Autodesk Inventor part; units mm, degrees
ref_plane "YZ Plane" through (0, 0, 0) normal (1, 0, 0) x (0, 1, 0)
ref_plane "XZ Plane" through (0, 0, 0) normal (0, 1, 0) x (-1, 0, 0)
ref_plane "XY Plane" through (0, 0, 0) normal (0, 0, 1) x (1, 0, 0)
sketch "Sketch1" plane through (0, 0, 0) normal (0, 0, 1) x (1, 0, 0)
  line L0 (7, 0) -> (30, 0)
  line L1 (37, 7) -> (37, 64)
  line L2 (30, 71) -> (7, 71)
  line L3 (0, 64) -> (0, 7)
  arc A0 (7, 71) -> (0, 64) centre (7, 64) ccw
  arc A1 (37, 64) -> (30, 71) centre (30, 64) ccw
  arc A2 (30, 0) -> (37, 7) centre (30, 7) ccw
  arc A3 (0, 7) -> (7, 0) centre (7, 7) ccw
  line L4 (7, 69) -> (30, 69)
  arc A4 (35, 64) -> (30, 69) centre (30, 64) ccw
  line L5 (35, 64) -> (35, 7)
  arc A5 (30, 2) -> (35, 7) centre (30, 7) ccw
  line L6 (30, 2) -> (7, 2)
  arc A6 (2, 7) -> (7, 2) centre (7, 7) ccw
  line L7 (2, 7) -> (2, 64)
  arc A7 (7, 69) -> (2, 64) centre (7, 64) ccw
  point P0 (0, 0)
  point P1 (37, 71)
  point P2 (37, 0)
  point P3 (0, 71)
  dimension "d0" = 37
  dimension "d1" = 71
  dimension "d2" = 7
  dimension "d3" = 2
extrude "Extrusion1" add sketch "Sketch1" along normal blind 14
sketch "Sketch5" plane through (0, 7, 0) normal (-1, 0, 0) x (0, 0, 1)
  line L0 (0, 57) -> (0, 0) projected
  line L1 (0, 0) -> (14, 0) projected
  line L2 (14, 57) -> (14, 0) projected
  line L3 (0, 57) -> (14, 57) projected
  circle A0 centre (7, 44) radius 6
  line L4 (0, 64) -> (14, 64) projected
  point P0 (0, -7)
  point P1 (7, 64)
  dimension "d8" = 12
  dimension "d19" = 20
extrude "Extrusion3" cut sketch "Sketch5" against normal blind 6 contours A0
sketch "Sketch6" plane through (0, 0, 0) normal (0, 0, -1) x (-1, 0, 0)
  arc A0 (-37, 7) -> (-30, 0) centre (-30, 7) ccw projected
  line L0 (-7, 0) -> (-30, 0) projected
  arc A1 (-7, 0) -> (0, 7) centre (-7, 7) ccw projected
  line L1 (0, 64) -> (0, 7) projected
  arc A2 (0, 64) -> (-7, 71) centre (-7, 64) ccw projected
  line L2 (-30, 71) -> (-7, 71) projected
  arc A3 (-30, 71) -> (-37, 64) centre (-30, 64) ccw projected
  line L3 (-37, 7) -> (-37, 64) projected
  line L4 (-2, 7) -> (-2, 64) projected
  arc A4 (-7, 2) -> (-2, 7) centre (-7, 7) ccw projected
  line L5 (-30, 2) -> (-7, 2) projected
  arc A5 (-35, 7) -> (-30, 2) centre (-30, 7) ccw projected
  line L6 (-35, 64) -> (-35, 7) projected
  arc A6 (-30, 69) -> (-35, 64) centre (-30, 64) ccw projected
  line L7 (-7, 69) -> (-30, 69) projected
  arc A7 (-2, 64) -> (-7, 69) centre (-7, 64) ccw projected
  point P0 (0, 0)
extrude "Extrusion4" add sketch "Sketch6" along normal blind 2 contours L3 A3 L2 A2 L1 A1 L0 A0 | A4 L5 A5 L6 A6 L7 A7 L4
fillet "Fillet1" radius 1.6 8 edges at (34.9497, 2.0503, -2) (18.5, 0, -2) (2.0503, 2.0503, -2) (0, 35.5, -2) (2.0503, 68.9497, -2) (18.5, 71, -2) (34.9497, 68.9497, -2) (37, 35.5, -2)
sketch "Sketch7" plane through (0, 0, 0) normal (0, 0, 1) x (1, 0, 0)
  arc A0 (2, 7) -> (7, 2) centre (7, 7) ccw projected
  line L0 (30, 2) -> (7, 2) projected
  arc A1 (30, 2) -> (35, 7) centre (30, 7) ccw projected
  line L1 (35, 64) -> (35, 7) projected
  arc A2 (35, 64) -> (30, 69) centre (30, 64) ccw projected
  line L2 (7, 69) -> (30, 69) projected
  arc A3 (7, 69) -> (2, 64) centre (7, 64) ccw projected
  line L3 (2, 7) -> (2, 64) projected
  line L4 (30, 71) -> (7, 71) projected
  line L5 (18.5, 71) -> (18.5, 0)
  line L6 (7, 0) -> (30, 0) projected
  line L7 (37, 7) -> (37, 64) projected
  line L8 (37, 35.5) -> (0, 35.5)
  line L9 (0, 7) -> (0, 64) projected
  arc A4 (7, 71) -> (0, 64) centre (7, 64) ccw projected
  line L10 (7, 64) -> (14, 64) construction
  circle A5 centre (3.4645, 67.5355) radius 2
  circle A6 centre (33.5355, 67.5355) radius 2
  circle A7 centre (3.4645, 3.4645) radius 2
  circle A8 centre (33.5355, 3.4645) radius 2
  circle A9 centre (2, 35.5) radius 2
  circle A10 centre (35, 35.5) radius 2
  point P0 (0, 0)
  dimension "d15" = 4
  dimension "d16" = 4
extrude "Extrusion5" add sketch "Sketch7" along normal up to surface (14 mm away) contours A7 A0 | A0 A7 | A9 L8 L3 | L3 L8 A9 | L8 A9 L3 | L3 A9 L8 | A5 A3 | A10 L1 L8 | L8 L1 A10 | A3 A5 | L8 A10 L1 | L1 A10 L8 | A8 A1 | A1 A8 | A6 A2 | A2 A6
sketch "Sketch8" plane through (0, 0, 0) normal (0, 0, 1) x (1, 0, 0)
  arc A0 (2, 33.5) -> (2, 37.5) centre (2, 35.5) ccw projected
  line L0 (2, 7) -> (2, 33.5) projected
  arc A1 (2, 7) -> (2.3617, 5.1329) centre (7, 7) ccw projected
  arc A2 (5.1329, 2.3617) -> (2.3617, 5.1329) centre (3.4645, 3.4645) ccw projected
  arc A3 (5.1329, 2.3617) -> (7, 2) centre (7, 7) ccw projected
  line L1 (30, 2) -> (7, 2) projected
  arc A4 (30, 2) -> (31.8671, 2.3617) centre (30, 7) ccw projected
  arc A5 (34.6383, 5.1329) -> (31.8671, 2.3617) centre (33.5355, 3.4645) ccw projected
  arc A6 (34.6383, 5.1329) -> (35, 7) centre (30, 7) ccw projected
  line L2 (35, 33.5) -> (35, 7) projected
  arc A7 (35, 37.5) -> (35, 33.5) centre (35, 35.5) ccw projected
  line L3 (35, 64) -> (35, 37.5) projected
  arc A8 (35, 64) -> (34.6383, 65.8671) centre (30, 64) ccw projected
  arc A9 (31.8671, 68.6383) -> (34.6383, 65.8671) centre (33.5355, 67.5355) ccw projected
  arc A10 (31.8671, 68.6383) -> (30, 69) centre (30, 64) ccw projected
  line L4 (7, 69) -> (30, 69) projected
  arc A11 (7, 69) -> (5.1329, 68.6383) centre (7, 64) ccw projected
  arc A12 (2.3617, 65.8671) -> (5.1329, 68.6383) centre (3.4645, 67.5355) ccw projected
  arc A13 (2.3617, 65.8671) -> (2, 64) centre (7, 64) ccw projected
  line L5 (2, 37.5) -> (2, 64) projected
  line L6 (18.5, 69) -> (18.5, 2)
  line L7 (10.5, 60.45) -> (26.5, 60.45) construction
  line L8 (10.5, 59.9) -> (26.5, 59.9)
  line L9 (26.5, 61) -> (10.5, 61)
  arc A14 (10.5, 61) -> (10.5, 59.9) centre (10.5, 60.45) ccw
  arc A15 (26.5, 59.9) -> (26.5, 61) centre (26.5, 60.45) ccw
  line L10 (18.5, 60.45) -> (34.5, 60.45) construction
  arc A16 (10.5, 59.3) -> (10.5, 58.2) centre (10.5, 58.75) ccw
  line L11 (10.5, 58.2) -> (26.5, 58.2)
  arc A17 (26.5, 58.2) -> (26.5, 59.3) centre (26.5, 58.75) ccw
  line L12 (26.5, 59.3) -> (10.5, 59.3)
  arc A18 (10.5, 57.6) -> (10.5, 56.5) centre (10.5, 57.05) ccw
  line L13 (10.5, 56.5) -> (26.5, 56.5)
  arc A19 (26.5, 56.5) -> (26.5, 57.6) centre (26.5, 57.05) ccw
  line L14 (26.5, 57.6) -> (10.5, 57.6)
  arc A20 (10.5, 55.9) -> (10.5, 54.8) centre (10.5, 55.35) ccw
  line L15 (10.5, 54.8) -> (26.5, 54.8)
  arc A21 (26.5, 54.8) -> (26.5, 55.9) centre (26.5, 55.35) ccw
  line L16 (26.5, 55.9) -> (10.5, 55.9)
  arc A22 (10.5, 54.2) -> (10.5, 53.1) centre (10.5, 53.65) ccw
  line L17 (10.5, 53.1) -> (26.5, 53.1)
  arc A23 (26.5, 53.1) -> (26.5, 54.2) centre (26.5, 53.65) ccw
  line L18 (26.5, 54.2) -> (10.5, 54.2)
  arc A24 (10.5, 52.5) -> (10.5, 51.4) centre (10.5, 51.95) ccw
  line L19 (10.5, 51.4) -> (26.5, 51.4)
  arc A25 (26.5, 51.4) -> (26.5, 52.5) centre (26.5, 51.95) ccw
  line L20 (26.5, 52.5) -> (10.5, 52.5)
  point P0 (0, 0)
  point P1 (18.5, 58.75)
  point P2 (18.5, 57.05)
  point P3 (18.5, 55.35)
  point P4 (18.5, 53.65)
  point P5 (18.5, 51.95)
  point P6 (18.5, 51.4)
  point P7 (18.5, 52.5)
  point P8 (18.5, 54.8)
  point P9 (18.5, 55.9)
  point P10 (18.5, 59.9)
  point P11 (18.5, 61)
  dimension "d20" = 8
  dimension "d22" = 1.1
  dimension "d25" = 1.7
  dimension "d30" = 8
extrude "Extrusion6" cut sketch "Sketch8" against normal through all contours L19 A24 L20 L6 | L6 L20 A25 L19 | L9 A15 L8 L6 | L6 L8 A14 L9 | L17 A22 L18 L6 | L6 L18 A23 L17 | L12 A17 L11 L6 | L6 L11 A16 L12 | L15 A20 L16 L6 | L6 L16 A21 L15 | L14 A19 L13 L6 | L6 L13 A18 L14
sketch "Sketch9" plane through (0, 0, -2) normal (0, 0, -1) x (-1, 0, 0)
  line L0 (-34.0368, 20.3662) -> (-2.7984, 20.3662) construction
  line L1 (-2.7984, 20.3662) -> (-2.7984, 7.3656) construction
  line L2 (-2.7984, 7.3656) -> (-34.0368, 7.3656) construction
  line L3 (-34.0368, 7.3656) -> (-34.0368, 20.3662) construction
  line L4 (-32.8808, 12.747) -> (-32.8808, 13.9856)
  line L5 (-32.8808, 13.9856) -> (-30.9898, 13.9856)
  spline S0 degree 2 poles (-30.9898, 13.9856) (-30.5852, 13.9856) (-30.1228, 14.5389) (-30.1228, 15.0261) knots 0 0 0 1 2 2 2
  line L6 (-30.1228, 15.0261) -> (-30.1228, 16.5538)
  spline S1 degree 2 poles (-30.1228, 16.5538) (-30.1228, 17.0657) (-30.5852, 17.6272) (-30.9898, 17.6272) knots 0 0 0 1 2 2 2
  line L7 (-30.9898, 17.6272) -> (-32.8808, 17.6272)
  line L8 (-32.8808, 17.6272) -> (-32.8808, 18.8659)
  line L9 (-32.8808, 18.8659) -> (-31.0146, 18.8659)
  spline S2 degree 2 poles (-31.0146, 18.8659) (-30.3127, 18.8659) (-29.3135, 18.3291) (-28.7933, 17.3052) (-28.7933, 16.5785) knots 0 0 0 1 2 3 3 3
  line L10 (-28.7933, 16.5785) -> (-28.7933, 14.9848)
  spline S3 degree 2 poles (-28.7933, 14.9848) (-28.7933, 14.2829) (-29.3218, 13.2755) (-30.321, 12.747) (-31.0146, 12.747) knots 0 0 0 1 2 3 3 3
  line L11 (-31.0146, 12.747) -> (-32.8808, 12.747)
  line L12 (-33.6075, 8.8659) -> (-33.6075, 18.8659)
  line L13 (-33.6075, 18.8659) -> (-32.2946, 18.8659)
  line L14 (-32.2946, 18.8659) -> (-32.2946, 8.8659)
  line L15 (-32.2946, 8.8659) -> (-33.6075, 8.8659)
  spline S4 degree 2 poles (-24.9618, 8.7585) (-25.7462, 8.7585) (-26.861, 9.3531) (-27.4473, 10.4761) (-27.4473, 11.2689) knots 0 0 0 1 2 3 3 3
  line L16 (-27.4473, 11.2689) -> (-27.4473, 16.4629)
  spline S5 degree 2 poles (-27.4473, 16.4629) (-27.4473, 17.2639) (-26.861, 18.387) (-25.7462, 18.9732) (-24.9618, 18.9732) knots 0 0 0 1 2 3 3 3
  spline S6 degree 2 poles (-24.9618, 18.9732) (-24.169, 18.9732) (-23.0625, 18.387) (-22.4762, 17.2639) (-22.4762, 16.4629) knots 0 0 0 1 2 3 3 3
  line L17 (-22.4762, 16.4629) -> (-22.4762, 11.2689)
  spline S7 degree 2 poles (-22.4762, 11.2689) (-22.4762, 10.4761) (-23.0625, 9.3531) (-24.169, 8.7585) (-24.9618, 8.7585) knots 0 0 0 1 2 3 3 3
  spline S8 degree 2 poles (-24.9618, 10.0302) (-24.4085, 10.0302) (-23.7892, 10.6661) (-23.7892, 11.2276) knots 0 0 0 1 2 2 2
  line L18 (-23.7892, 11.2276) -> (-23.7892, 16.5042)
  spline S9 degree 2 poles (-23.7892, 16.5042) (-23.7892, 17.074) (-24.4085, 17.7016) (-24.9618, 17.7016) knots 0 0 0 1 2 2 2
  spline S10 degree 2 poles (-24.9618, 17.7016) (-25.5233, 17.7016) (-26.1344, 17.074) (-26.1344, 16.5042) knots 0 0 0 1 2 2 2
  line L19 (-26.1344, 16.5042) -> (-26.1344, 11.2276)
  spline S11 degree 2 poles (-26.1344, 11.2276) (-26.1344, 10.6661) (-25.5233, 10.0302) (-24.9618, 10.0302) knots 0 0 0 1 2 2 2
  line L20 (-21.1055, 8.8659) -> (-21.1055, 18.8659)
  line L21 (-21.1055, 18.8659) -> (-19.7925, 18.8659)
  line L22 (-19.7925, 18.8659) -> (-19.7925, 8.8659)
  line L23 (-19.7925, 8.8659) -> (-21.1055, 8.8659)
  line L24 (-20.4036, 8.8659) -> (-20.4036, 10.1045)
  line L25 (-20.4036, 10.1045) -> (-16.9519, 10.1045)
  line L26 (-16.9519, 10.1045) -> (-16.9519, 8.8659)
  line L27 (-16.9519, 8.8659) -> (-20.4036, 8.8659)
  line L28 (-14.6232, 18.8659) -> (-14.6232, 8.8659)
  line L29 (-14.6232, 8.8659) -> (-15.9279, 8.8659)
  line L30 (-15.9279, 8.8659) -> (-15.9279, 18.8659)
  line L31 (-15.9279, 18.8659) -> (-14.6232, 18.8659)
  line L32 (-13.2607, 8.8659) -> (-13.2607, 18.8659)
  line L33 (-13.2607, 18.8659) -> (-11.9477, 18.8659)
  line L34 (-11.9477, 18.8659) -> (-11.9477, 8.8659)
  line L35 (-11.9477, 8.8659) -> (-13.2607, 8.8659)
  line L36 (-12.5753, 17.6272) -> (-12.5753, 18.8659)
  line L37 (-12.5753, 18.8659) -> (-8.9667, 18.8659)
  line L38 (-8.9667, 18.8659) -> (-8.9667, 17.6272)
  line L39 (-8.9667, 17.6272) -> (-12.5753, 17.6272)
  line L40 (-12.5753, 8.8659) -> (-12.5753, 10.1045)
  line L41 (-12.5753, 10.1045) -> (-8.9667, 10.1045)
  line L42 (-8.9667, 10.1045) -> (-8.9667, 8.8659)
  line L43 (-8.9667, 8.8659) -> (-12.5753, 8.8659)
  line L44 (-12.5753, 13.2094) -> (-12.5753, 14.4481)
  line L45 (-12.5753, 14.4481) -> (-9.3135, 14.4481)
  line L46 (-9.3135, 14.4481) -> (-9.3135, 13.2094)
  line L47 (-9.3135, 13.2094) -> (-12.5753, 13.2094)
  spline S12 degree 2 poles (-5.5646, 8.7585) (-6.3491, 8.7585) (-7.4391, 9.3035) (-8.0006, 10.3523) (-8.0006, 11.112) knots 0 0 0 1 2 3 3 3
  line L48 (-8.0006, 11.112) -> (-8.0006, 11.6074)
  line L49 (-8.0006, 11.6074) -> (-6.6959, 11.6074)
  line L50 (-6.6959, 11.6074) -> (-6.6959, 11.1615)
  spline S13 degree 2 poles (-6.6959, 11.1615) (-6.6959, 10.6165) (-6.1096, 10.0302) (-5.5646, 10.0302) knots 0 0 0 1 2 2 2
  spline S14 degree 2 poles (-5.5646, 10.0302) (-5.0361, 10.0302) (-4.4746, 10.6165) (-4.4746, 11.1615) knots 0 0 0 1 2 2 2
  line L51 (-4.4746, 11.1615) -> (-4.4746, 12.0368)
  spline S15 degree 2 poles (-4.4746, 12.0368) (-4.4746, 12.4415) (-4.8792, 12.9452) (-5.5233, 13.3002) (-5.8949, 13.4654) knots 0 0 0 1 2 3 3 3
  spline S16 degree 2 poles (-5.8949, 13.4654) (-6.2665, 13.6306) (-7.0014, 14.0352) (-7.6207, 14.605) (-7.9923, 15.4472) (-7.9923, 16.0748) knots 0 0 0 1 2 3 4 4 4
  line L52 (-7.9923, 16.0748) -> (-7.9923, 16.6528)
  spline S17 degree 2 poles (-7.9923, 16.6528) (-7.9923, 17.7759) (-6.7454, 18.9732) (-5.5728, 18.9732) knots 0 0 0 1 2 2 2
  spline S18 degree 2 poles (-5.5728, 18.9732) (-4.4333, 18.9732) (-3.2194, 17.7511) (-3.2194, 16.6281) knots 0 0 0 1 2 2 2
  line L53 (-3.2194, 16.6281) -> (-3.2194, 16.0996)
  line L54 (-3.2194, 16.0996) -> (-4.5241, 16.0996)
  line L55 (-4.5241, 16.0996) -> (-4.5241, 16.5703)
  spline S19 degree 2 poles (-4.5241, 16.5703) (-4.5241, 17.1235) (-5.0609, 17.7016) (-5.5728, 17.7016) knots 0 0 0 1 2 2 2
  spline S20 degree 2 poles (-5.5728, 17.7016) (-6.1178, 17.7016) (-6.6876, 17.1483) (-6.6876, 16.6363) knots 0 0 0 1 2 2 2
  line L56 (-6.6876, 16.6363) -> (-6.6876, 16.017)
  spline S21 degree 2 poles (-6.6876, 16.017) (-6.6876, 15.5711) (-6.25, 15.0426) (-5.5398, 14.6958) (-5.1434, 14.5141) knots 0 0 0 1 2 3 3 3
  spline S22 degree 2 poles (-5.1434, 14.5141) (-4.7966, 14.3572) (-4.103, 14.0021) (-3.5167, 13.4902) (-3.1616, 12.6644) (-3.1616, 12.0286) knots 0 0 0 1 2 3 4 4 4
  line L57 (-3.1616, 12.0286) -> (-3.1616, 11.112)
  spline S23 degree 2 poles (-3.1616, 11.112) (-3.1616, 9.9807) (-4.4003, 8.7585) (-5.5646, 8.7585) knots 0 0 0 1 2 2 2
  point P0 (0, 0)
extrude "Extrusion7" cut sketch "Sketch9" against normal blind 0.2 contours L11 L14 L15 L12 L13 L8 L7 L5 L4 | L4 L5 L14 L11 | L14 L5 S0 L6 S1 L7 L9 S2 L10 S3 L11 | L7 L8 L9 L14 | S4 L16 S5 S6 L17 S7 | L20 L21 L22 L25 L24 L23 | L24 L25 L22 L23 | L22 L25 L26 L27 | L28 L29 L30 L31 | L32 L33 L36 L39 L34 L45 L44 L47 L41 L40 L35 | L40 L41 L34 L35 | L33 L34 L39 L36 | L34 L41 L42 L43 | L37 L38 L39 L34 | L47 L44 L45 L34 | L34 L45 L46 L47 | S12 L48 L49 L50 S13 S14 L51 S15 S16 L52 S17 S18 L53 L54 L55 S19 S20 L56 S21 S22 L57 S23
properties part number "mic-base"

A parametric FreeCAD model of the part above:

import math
import FreeCAD as App
import Part
import Sketcher
Q = App.Units.Quantity


def edges_at(feature, points):
    """Names of the edges that pass closest to the given points."""
    edges = feature.Shape.Edges
    near = lambda p: min(range(len(edges)), key=lambda i: edges[i].distToShape(Part.Vertex(*p))[0])
    return sorted({f"Edge{near(p) + 1}" for p in points})


def add_polygon(sketch, points):
    """Adds a closed chain of lines whose ends are joined by coincident constraints."""
    first, n = sketch.GeometryCount, len(points)
    for a, b in zip(points, points[1:] + points[:1]):
        sketch.addGeometry(Part.LineSegment(App.Vector(*a, 0), App.Vector(*b, 0)), False)
    for i in range(n):
        sketch.addConstraint(Sketcher.Constraint("Coincident", first + i, 2, first + (i + 1) % n, 1))

doc = App.newDocument("Part")
body = doc.addObject("PartDesign::Body", "Body")

sketch1 = body.newObject("Sketcher::SketchObject", "Sketch")
sketch1.AttachmentSupport = (doc.getObject("XY_Plane"), [""])
sketch1.MapMode = "FlatFace"
sketch1.addGeometry([
    Part.ArcOfCircle(Part.Circle(App.Vector(7, 7, 0), App.Vector(0, 0, 1), 7), math.radians(180), math.radians(270)),
    Part.LineSegment(App.Vector(7, 0, 0), App.Vector(30, 0, 0)),
    Part.ArcOfCircle(Part.Circle(App.Vector(30, 7, 0), App.Vector(0, 0, 1), 7), math.radians(-90), math.radians(0)),
    Part.LineSegment(App.Vector(37, 7, 0), App.Vector(37, 64, 0)),
    Part.ArcOfCircle(Part.Circle(App.Vector(30, 64, 0), App.Vector(0, 0, 1), 7), math.radians(0), math.radians(90)),
    Part.LineSegment(App.Vector(30, 71, 0), App.Vector(7, 71, 0)),
    Part.ArcOfCircle(Part.Circle(App.Vector(7, 64, 0), App.Vector(0, 0, 1), 7), math.radians(90), math.radians(180)),
    Part.LineSegment(App.Vector(0, 64, 0), App.Vector(0, 7, 0)),
    Part.ArcOfCircle(Part.Circle(App.Vector(7, 64, 0), App.Vector(0, 0, 1), 5), math.radians(90), math.radians(180)),
    Part.LineSegment(App.Vector(7, 69, 0), App.Vector(30, 69, 0)),
    Part.ArcOfCircle(Part.Circle(App.Vector(30, 64, 0), App.Vector(0, 0, 1), 5), math.radians(0), math.radians(90)),
    Part.LineSegment(App.Vector(35, 64, 0), App.Vector(35, 7, 0)),
    Part.ArcOfCircle(Part.Circle(App.Vector(30, 7, 0), App.Vector(0, 0, 1), 5), math.radians(-90), math.radians(0)),
    Part.LineSegment(App.Vector(30, 2, 0), App.Vector(7, 2, 0)),
    Part.ArcOfCircle(Part.Circle(App.Vector(7, 7, 0), App.Vector(0, 0, 1), 5), math.radians(180), math.radians(270)),
    Part.LineSegment(App.Vector(2, 7, 0), App.Vector(2, 64, 0)),
], False)
sketch1.addConstraint([
    Sketcher.Constraint("Tangent", 0, 2, 1, 1),
    Sketcher.Constraint("Tangent", 1, 2, 2, 1),
    Sketcher.Constraint("Tangent", 2, 2, 3, 1),
    Sketcher.Constraint("Tangent", 3, 2, 4, 1),
    Sketcher.Constraint("Tangent", 4, 2, 5, 1),
    Sketcher.Constraint("Tangent", 5, 2, 6, 1),
    Sketcher.Constraint("Tangent", 6, 2, 7, 1),
    Sketcher.Constraint("Tangent", 7, 2, 0, 1),
    Sketcher.Constraint("Tangent", 8, 1, 9, 1),
    Sketcher.Constraint("Tangent", 9, 2, 10, 2),
    Sketcher.Constraint("Tangent", 10, 1, 11, 1),
    Sketcher.Constraint("Tangent", 11, 2, 12, 2),
    Sketcher.Constraint("Tangent", 12, 1, 13, 1),
    Sketcher.Constraint("Tangent", 13, 2, 14, 2),
    Sketcher.Constraint("Tangent", 14, 1, 15, 1),
    Sketcher.Constraint("Tangent", 15, 2, 8, 2),
    Sketcher.Constraint("Horizontal", 1),
    Sketcher.Constraint("Vertical", 3),
    Sketcher.Constraint("Horizontal", 5),
    Sketcher.Constraint("Vertical", 7),
    Sketcher.Constraint("Horizontal", 9),
    Sketcher.Constraint("Vertical", 11),
    Sketcher.Constraint("Horizontal", 13),
    Sketcher.Constraint("Vertical", 15),
    Sketcher.Constraint("Coincident", 8, 3, 6, 3),
    Sketcher.Constraint("Coincident", 10, 3, 4, 3),
    Sketcher.Constraint("Coincident", 12, 3, 2, 3),
    Sketcher.Constraint("Equal", 0, 2),
    Sketcher.Constraint("Equal", 2, 4),
    Sketcher.Constraint("Equal", 4, 6),
    Sketcher.Constraint("Equal", 12, 14),
    Sketcher.Constraint("PointOnObject", 0, 2, -1),
    Sketcher.Constraint("PointOnObject", 6, 2, -2),
    Sketcher.Constraint("Radius", 0, Q("7 mm")),
    Sketcher.Constraint("DistanceX", -1, 1, 2, 2, Q("37 mm")),
    Sketcher.Constraint("DistanceY", -1, 1, 4, 2, Q("71 mm")),
    Sketcher.Constraint("DistanceY", -1, 1, 12, 1, Q("2 mm")),
])
pad1 = body.newObject("PartDesign::Pad", "Pad")
pad1.Profile = sketch1
pad1.Length = 14

sketch2 = body.newObject("Sketcher::SketchObject", "Sketch001")
sketch2.AttachmentSupport = (doc.getObject("YZ_Plane"), [""])
sketch2.MapMode = "FlatFace"
sketch2.addGeometry(Part.Circle(App.Vector(51, 7, 0), App.Vector(0, 0, 1), 6), False)
sketch2.addConstraint([
    Sketcher.Constraint("Diameter", 0, Q("12 mm")),
    Sketcher.Constraint("DistanceX", -1, 1, 0, 3, Q("51 mm")),
    Sketcher.Constraint("DistanceY", -1, 1, 0, 3, Q("7 mm")),
])
pocket1 = body.newObject("PartDesign::Pocket", "Pocket")
pocket1.Profile = sketch2
pocket1.Length = 6
pocket1.Reversed = True

sketch3 = body.newObject("Sketcher::SketchObject", "Sketch002")
sketch3.AttachmentSupport = (doc.getObject("XY_Plane"), [""])
sketch3.MapMode = "FlatFace"
sketch3.addGeometry([
    Part.LineSegment(App.Vector(37, 64, 0), App.Vector(37, 7, 0)),
    Part.ArcOfCircle(Part.Circle(App.Vector(30, 7, 0), App.Vector(0, 0, 1), 7), math.radians(-90), math.radians(0)),
    Part.LineSegment(App.Vector(30, 0, 0), App.Vector(7, 0, 0)),
    Part.ArcOfCircle(Part.Circle(App.Vector(7, 7, 0), App.Vector(0, 0, 1), 7), math.radians(180), math.radians(270)),
    Part.LineSegment(App.Vector(0, 7, 0), App.Vector(0, 64, 0)),
    Part.ArcOfCircle(Part.Circle(App.Vector(7, 64, 0), App.Vector(0, 0, 1), 7), math.radians(90), math.radians(180)),
    Part.LineSegment(App.Vector(7, 71, 0), App.Vector(30, 71, 0)),
    Part.ArcOfCircle(Part.Circle(App.Vector(30, 64, 0), App.Vector(0, 0, 1), 7), math.radians(0), math.radians(90)),
], False)
sketch3.addConstraint([
    Sketcher.Constraint("Tangent", 0, 2, 1, 2),
    Sketcher.Constraint("Tangent", 1, 1, 2, 1),
    Sketcher.Constraint("Tangent", 2, 2, 3, 2),
    Sketcher.Constraint("Tangent", 3, 1, 4, 1),
    Sketcher.Constraint("Tangent", 4, 2, 5, 2),
    Sketcher.Constraint("Tangent", 5, 1, 6, 1),
    Sketcher.Constraint("Tangent", 6, 2, 7, 2),
    Sketcher.Constraint("Tangent", 7, 1, 0, 1),
    Sketcher.Constraint("Vertical", 0),
    Sketcher.Constraint("Horizontal", 2),
    Sketcher.Constraint("Vertical", 4),
    Sketcher.Constraint("Horizontal", 6),
    Sketcher.Constraint("Equal", 1, 3),
    Sketcher.Constraint("Equal", 3, 5),
    Sketcher.Constraint("Equal", 5, 7),
    Sketcher.Constraint("PointOnObject", 1, 1, -1),
    Sketcher.Constraint("PointOnObject", 3, 1, -2),
    Sketcher.Constraint("Radius", 1, Q("7 mm")),
    Sketcher.Constraint("DistanceX", 2, 2, 2, 1, Q("23 mm")),
    Sketcher.Constraint("DistanceY", 0, 2, 0, 1, Q("57 mm")),
])
pad2 = body.newObject("PartDesign::Pad", "Pad001")
pad2.Profile = sketch3
pad2.Length = 2
pad2.Reversed = True
doc.recompute()

fillet = body.newObject("PartDesign::Fillet", "Fillet")
fillet.Base = (pad2, edges_at(pad2, [
    (34.95, 2.05, -2),
    (18.5, 0, -2),
    (2.05, 2.05, -2),
    (0, 35.5, -2),
    (2.05, 68.95, -2),
    (18.5, 71, -2),
    (34.95, 68.95, -2),
    (37, 35.5, -2),
]))
fillet.Radius = 1.6

sketch4 = body.newObject("Sketcher::SketchObject", "Sketch003")
sketch4.AttachmentSupport = (doc.getObject("XY_Plane"), [""])
sketch4.MapMode = "FlatFace"
sketch4.addGeometry([
    Part.Circle(App.Vector(3.5, 3.5, 0), App.Vector(0, 0, 1), 2),
    Part.Circle(App.Vector(2, 35.5, 0), App.Vector(0, 0, 1), 2),
    Part.Circle(App.Vector(3.5, 67.5, 0), App.Vector(0, 0, 1), 2),
    Part.Circle(App.Vector(35, 35.5, 0), App.Vector(0, 0, 1), 2),
    Part.Circle(App.Vector(33.5, 3.5, 0), App.Vector(0, 0, 1), 2),
    Part.Circle(App.Vector(33.5, 67.5, 0), App.Vector(0, 0, 1), 2),
], False)
sketch4.addConstraint([
    Sketcher.Constraint("Equal", 0, 1),
    Sketcher.Constraint("Equal", 1, 2),
    Sketcher.Constraint("Equal", 2, 3),
    Sketcher.Constraint("Equal", 3, 4),
    Sketcher.Constraint("Equal", 4, 5),
    Sketcher.Constraint("Horizontal", 1, 3, 3, 3),
    Sketcher.Constraint("Horizontal", 0, 3, 4, 3),
    Sketcher.Constraint("Horizontal", 2, 3, 5, 3),
    Sketcher.Constraint("Vertical", 0, 3, 2, 3),
    Sketcher.Constraint("Vertical", 4, 3, 5, 3),
    Sketcher.Constraint("Diameter", 0, Q("4 mm")),
    Sketcher.Constraint("DistanceX", -1, 1, 1, 3, Q("2 mm")),
    Sketcher.Constraint("DistanceX", -1, 1, 3, 3, Q("35 mm")),
    Sketcher.Constraint("DistanceY", -1, 1, 1, 3, Q("35.5 mm")),
    Sketcher.Constraint("DistanceY", 0, 3, 2, 3, Q("64.071 mm")),
    Sketcher.Constraint("DistanceX", 0, 3, 4, 3, Q("30.071 mm")),
    Sketcher.Constraint("DistanceX", -1, 1, 0, 3, Q("3.4645 mm")),
    Sketcher.Constraint("DistanceY", -1, 1, 0, 3, Q("3.4645 mm")),
])
pad3 = body.newObject("PartDesign::Pad", "Pad002")
pad3.Profile = sketch4
pad3.Length = 14

sketch5 = body.newObject("Sketcher::SketchObject", "Sketch004")
sketch5.AttachmentSupport = (doc.getObject("XY_Plane"), [""])
sketch5.MapMode = "FlatFace"
sketch5.addGeometry([
    Part.LineSegment(App.Vector(10.5, 51.4, 0), App.Vector(26.5, 51.4, 0)),
    Part.ArcOfCircle(Part.Circle(App.Vector(26.5, 52, 0), App.Vector(0, 0, 1), 0.6), math.radians(-90), math.radians(90)),
    Part.LineSegment(App.Vector(26.5, 52.5, 0), App.Vector(10.5, 52.5, 0)),
    Part.ArcOfCircle(Part.Circle(App.Vector(10.5, 52, 0), App.Vector(0, 0, 1), 0.5), math.radians(90), math.radians(270)),
    Part.LineSegment(App.Vector(26.5, 61, 0), App.Vector(10.5, 61, 0)),
    Part.ArcOfCircle(Part.Circle(App.Vector(10.5, 60.5, 0), App.Vector(0, 0, 1), 0.5), math.radians(90), math.radians(270)),
    Part.LineSegment(App.Vector(10.5, 59.9, 0), App.Vector(26.5, 59.9, 0)),
    Part.ArcOfCircle(Part.Circle(App.Vector(26.5, 60.5, 0), App.Vector(0, 0, 1), 0.6), math.radians(-90), math.radians(90)),
    Part.LineSegment(App.Vector(10.5, 53.1, 0), App.Vector(26.5, 53.1, 0)),
    Part.ArcOfCircle(Part.Circle(App.Vector(26.5, 53.6, 0), App.Vector(0, 0, 1), 0.5), math.radians(-90), math.radians(90)),
    Part.LineSegment(App.Vector(26.5, 54.2, 0), App.Vector(10.5, 54.2, 0)),
    Part.ArcOfCircle(Part.Circle(App.Vector(10.5, 53.6, 0), App.Vector(0, 0, 1), 0.6), math.radians(90), math.radians(270)),
    Part.LineSegment(App.Vector(26.5, 59.3, 0), App.Vector(10.5, 59.3, 0)),
    Part.ArcOfCircle(Part.Circle(App.Vector(10.5, 58.8, 0), App.Vector(0, 0, 1), 0.5), math.radians(90), math.radians(270)),
    Part.LineSegment(App.Vector(10.5, 58.2, 0), App.Vector(26.5, 58.2, 0)),
    Part.ArcOfCircle(Part.Circle(App.Vector(26.5, 58.8, 0), App.Vector(0, 0, 1), 0.5), math.radians(-90), math.radians(90)),
    Part.LineSegment(App.Vector(10.5, 54.8, 0), App.Vector(26.5, 54.8, 0)),
    Part.ArcOfCircle(Part.Circle(App.Vector(26.5, 55.4, 0), App.Vector(0, 0, 1), 0.6), math.radians(-90), math.radians(90)),
    Part.LineSegment(App.Vector(26.5, 55.9, 0), App.Vector(10.5, 55.9, 0)),
    Part.ArcOfCircle(Part.Circle(App.Vector(10.5, 55.4, 0), App.Vector(0, 0, 1), 0.5), math.radians(90), math.radians(270)),
    Part.LineSegment(App.Vector(26.5, 57.6, 0), App.Vector(10.5, 57.6, 0)),
    Part.ArcOfCircle(Part.Circle(App.Vector(10.5, 57, 0), App.Vector(0, 0, 1), 0.6), math.radians(90), math.radians(270)),
    Part.LineSegment(App.Vector(10.5, 56.5, 0), App.Vector(26.5, 56.5, 0)),
    Part.ArcOfCircle(Part.Circle(App.Vector(26.5, 57, 0), App.Vector(0, 0, 1), 0.5), math.radians(-90), math.radians(90)),
], False)
sketch5.addConstraint([
    Sketcher.Constraint("Tangent", 0, 2, 1, 1),
    Sketcher.Constraint("Tangent", 1, 2, 2, 1),
    Sketcher.Constraint("Tangent", 2, 2, 3, 1),
    Sketcher.Constraint("Tangent", 3, 2, 0, 1),
    Sketcher.Constraint("Tangent", 4, 2, 5, 1),
    Sketcher.Constraint("Tangent", 5, 2, 6, 1),
    Sketcher.Constraint("Tangent", 6, 2, 7, 1),
    Sketcher.Constraint("Tangent", 7, 2, 4, 1),
    Sketcher.Constraint("Tangent", 8, 2, 9, 1),
    Sketcher.Constraint("Tangent", 9, 2, 10, 1),
    Sketcher.Constraint("Tangent", 10, 2, 11, 1),
    Sketcher.Constraint("Tangent", 11, 2, 8, 1),
    Sketcher.Constraint("Tangent", 12, 2, 13, 1),
    Sketcher.Constraint("Tangent", 13, 2, 14, 1),
    Sketcher.Constraint("Tangent", 14, 2, 15, 1),
    Sketcher.Constraint("Tangent", 15, 2, 12, 1),
    Sketcher.Constraint("Tangent", 16, 2, 17, 1),
    Sketcher.Constraint("Tangent", 17, 2, 18, 1),
    Sketcher.Constraint("Tangent", 18, 2, 19, 1),
    Sketcher.Constraint("Tangent", 19, 2, 16, 1),
    Sketcher.Constraint("Tangent", 20, 2, 21, 1),
    Sketcher.Constraint("Tangent", 21, 2, 22, 1),
    Sketcher.Constraint("Tangent", 22, 2, 23, 1),
    Sketcher.Constraint("Tangent", 23, 2, 20, 1),
    Sketcher.Constraint("Horizontal", 0),
    Sketcher.Constraint("Horizontal", 2),
    Sketcher.Constraint("Horizontal", 4),
    Sketcher.Constraint("Horizontal", 6),
    Sketcher.Constraint("Horizontal", 8),
    Sketcher.Constraint("Horizontal", 10),
    Sketcher.Constraint("Horizontal", 12),
    Sketcher.Constraint("Horizontal", 14),
    Sketcher.Constraint("Horizontal", 16),
    Sketcher.Constraint("Horizontal", 18),
    Sketcher.Constraint("Horizontal", 20),
    Sketcher.Constraint("Horizontal", 22),
    Sketcher.Constraint("Equal", 3, 5),
    Sketcher.Constraint("Equal", 7, 9),
    Sketcher.Constraint("Equal", 11, 13),
    Sketcher.Constraint("Equal", 15, 17),
    Sketcher.Constraint("Equal", 19, 21),
    Sketcher.Constraint("Vertical", 3, 3, 5, 3),
    Sketcher.Constraint("Vertical", 1, 3, 7, 3),
    Sketcher.Constraint("Vertical", 7, 3, 9, 3),
    Sketcher.Constraint("Vertical", 5, 3, 11, 3),
    Sketcher.Constraint("Vertical", 11, 3, 13, 3),
    Sketcher.Constraint("Vertical", 9, 3, 15, 3),
    Sketcher.Constraint("Vertical", 15, 3, 17, 3),
    Sketcher.Constraint("Vertical", 13, 3, 19, 3),
    Sketcher.Constraint("Vertical", 19, 3, 21, 3),
    Sketcher.Constraint("Vertical", 17, 3, 23, 3),
    Sketcher.Constraint("Radius", 1, Q("0.55 mm")),
    Sketcher.Constraint("DistanceY", 1, 3, 9, 3, Q("1.7 mm")),
    Sketcher.Constraint("DistanceY", 13, 3, 5, 3, Q("1.7 mm")),
    Sketcher.Constraint("DistanceY", 9, 3, 17, 3, Q("1.7 mm")),
    Sketcher.Constraint("DistanceY", 19, 3, 21, 3, Q("1.7 mm")),
    Sketcher.Constraint("DistanceY", 21, 3, 13, 3, Q("1.7 mm")),
    Sketcher.Constraint("DistanceX", 0, 1, 0, 2, Q("16 mm")),
    Sketcher.Constraint("DistanceY", -1, 1, 4, 2, Q("61 mm")),
    Sketcher.Constraint("DistanceX", -1, 1, 1, 3, Q("26.5 mm")),
])
pocket2 = body.newObject("PartDesign::Pocket", "Pocket001")
pocket2.Profile = sketch5
pocket2.Type = "ThroughAll"

sketch6 = body.newObject("Sketcher::SketchObject", "Sketch005")
sketch6.AttachmentSupport = (doc.getObject("XY_Plane"), [""])
sketch6.MapMode = "FlatFace"
sketch6.AttachmentOffset = App.Placement(App.Vector(0, 0, -2), App.Rotation())
sketch6.addGeometry(Part.LineSegment(App.Vector(32.2946, 8.8659, 0), App.Vector(32.2946, 12.747, 0)), False)
sketch6.addGeometry(Part.LineSegment(App.Vector(32.2946, 12.747, 0), App.Vector(31.0146, 12.747, 0)), False)
sketch6.addGeometry(Part.BSplineCurve([App.Vector(28.7933, 14.9848, 0), App.Vector(28.7933, 14.2829, 0), App.Vector(29.3218, 13.2755, 0), App.Vector(30.321, 12.747, 0), App.Vector(31.0146, 12.747, 0)], [3, 1, 1, 3], [0, 1, 2, 3], False, 2, [1, 1, 1, 1, 1], False), False)
sketch6.addGeometry(Part.LineSegment(App.Vector(28.7933, 14.9848, 0), App.Vector(28.7933, 16.5785, 0)), False)
sketch6.addGeometry(Part.BSplineCurve([App.Vector(31.0146, 18.8659, 0), App.Vector(30.3127, 18.8659, 0), App.Vector(29.3135, 18.3291, 0), App.Vector(28.7933, 17.3052, 0), App.Vector(28.7933, 16.5785, 0)], [3, 1, 1, 3], [0, 1, 2, 3], False, 2, [1, 1, 1, 1, 1], False), False)
sketch6.addGeometry(Part.LineSegment(App.Vector(31.0146, 18.8659, 0), App.Vector(33.6075, 18.8659, 0)), False)
sketch6.addGeometry(Part.LineSegment(App.Vector(33.6075, 18.8659, 0), App.Vector(33.6075, 8.8659, 0)), False)
sketch6.addGeometry(Part.LineSegment(App.Vector(33.6075, 8.8659, 0), App.Vector(32.2946, 8.8659, 0)), False)
sketch6.addGeometry(Part.LineSegment(App.Vector(32.2946, 13.9856, 0), App.Vector(32.2946, 17.6272, 0)), False)
sketch6.addGeometry(Part.LineSegment(App.Vector(32.2946, 17.6272, 0), App.Vector(30.9898, 17.6272, 0)), False)
sketch6.addGeometry(Part.BSplineCurve([App.Vector(30.1228, 16.5538, 0), App.Vector(30.1228, 17.0657, 0), App.Vector(30.5852, 17.6272, 0), App.Vector(30.9898, 17.6272, 0)], [3, 1, 3], [0, 1, 2], False, 2, [1, 1, 1, 1], False), False)
sketch6.addGeometry(Part.LineSegment(App.Vector(30.1228, 16.5538, 0), App.Vector(30.1228, 15.0261, 0)), False)
sketch6.addGeometry(Part.BSplineCurve([App.Vector(30.9898, 13.9856, 0), App.Vector(30.5852, 13.9856, 0), App.Vector(30.1228, 14.5389, 0), App.Vector(30.1228, 15.0261, 0)], [3, 1, 3], [0, 1, 2], False, 2, [1, 1, 1, 1], False), False)
sketch6.addGeometry(Part.LineSegment(App.Vector(30.9898, 13.9856, 0), App.Vector(32.2946, 13.9856, 0)), False)
sketch6.addGeometry(Part.BSplineCurve([App.Vector(24.9618, 8.7585, 0), App.Vector(25.7462, 8.7585, 0), App.Vector(26.861, 9.3531, 0), App.Vector(27.4473, 10.4761, 0), App.Vector(27.4473, 11.2689, 0)], [3, 1, 1, 3], [0, 1, 2, 3], False, 2, [1, 1, 1, 1, 1], False), False)
sketch6.addGeometry(Part.BSplineCurve([App.Vector(22.4762, 11.2689, 0), App.Vector(22.4762, 10.4761, 0), App.Vector(23.0625, 9.3531, 0), App.Vector(24.169, 8.7585, 0), App.Vector(24.9618, 8.7585, 0)], [3, 1, 1, 3], [0, 1, 2, 3], False, 2, [1, 1, 1, 1, 1], False), False)
sketch6.addGeometry(Part.LineSegment(App.Vector(22.4762, 11.2689, 0), App.Vector(22.4762, 16.4629, 0)), False)
sketch6.addGeometry(Part.BSplineCurve([App.Vector(24.9618, 18.9732, 0), App.Vector(24.169, 18.9732, 0), App.Vector(23.0625, 18.387, 0), App.Vector(22.4762, 17.2639, 0), App.Vector(22.4762, 16.4629, 0)], [3, 1, 1, 3], [0, 1, 2, 3], False, 2, [1, 1, 1, 1, 1], False), False)
sketch6.addGeometry(Part.BSplineCurve([App.Vector(27.4473, 16.4629, 0), App.Vector(27.4473, 17.2639, 0), App.Vector(26.861, 18.387, 0), App.Vector(25.7462, 18.9732, 0), App.Vector(24.9618, 18.9732, 0)], [3, 1, 1, 3], [0, 1, 2, 3], False, 2, [1, 1, 1, 1, 1], False), False)
sketch6.addGeometry(Part.LineSegment(App.Vector(27.4473, 16.4629, 0), App.Vector(27.4473, 11.2689, 0)), False)
sketch6.addGeometry(Part.BSplineCurve([App.Vector(24.9618, 10.0302, 0), App.Vector(24.4085, 10.0302, 0), App.Vector(23.7892, 10.6661, 0), App.Vector(23.7892, 11.2276, 0)], [3, 1, 3], [0, 1, 2], False, 2, [1, 1, 1, 1], False), False)
sketch6.addGeometry(Part.BSplineCurve([App.Vector(26.1344, 11.2276, 0), App.Vector(26.1344, 10.6661, 0), App.Vector(25.5233, 10.0302, 0), App.Vector(24.9618, 10.0302, 0)], [3, 1, 3], [0, 1, 2], False, 2, [1, 1, 1, 1], False), False)
sketch6.addGeometry(Part.LineSegment(App.Vector(26.1344, 11.2276, 0), App.Vector(26.1344, 16.5042, 0)), False)
sketch6.addGeometry(Part.BSplineCurve([App.Vector(24.9618, 17.7016, 0), App.Vector(25.5233, 17.7016, 0), App.Vector(26.1344, 17.074, 0), App.Vector(26.1344, 16.5042, 0)], [3, 1, 3], [0, 1, 2], False, 2, [1, 1, 1, 1], False), False)
sketch6.addGeometry(Part.BSplineCurve([App.Vector(23.7892, 16.5042, 0), App.Vector(23.7892, 17.074, 0), App.Vector(24.4085, 17.7016, 0), App.Vector(24.9618, 17.7016, 0)], [3, 1, 3], [0, 1, 2], False, 2, [1, 1, 1, 1], False), False)
sketch6.addGeometry(Part.LineSegment(App.Vector(23.7892, 16.5042, 0), App.Vector(23.7892, 11.2276, 0)), False)
add_polygon(sketch6, [(21.1055, 18.8659), (21.1055, 8.8659), (16.9519, 8.8659), (16.9519, 10.1045), (19.7925, 10.1045), (19.7925, 18.8659)])
add_polygon(sketch6, [(14.6232, 8.8659), (14.6232, 18.8659), (15.9279, 18.8659), (15.9279, 8.8659)])
add_polygon(sketch6, [(13.2607, 18.8659), (13.2607, 8.8659), (8.9667, 8.8659), (8.9667, 10.1045), (11.9477, 10.1045), (11.9477, 13.2094), (9.3135, 13.2094), (9.3135, 14.4481), (11.9477, 14.4481), (11.9477, 17.6272), (8.9667, 17.6272), (8.9667, 18.8659)])
sketch6.addGeometry(Part.BSplineCurve([App.Vector(5.5646, 8.7585, 0), App.Vector(6.3491, 8.7585, 0), App.Vector(7.4391, 9.3035, 0), App.Vector(8.0006, 10.3523, 0), App.Vector(8.0006, 11.112, 0)], [3, 1, 1, 3], [0, 1, 2, 3], False, 2, [1, 1, 1, 1, 1], False), False)
sketch6.addGeometry(Part.BSplineCurve([App.Vector(3.1616, 11.112, 0), App.Vector(3.1616, 9.9807, 0), App.Vector(4.4003, 8.7585, 0), App.Vector(5.5646, 8.7585, 0)], [3, 1, 3], [0, 1, 2], False, 2, [1, 1, 1, 1], False), False)
sketch6.addGeometry(Part.LineSegment(App.Vector(3.1616, 11.112, 0), App.Vector(3.1616, 12.0286, 0)), False)
sketch6.addGeometry(Part.BSplineCurve([App.Vector(5.1434, 14.5141, 0), App.Vector(4.7966, 14.3572, 0), App.Vector(4.103, 14.0021, 0), App.Vector(3.5167, 13.4902, 0), App.Vector(3.1616, 12.6644, 0), App.Vector(3.1616, 12.0286, 0)], [3, 1, 1, 1, 3], [0, 1, 2, 3, 4], False, 2, [1, 1, 1, 1, 1, 1], False), False)
sketch6.addGeometry(Part.BSplineCurve([App.Vector(6.6876, 16.017, 0), App.Vector(6.6876, 15.5711, 0), App.Vector(6.25, 15.0426, 0), App.Vector(5.5398, 14.6958, 0), App.Vector(5.1434, 14.5141, 0)], [3, 1, 1, 3], [0, 1, 2, 3], False, 2, [1, 1, 1, 1, 1], False), False)
sketch6.addGeometry(Part.LineSegment(App.Vector(6.6876, 16.017, 0), App.Vector(6.6876, 16.6363, 0)), False)
sketch6.addGeometry(Part.BSplineCurve([App.Vector(5.5728, 17.7016, 0), App.Vector(6.1178, 17.7016, 0), App.Vector(6.6876, 17.1483, 0), App.Vector(6.6876, 16.6363, 0)], [3, 1, 3], [0, 1, 2], False, 2, [1, 1, 1, 1], False), False)
sketch6.addGeometry(Part.BSplineCurve([App.Vector(4.5241, 16.5703, 0), App.Vector(4.5241, 17.1235, 0), App.Vector(5.0609, 17.7016, 0), App.Vector(5.5728, 17.7016, 0)], [3, 1, 3], [0, 1, 2], False, 2, [1, 1, 1, 1], False), False)
sketch6.addGeometry(Part.LineSegment(App.Vector(4.5241, 16.5703, 0), App.Vector(4.5241, 16.0996, 0)), False)
sketch6.addGeometry(Part.LineSegment(App.Vector(4.5241, 16.0996, 0), App.Vector(3.2194, 16.0996, 0)), False)
sketch6.addGeometry(Part.LineSegment(App.Vector(3.2194, 16.0996, 0), App.Vector(3.2194, 16.6281, 0)), False)
sketch6.addGeometry(Part.BSplineCurve([App.Vector(5.5728, 18.9732, 0), App.Vector(4.4333, 18.9732, 0), App.Vector(3.2194, 17.7511, 0), App.Vector(3.2194, 16.6281, 0)], [3, 1, 3], [0, 1, 2], False, 2, [1, 1, 1, 1], False), False)
sketch6.addGeometry(Part.BSplineCurve([App.Vector(7.9923, 16.6528, 0), App.Vector(7.9923, 17.7759, 0), App.Vector(6.7454, 18.9732, 0), App.Vector(5.5728, 18.9732, 0)], [3, 1, 3], [0, 1, 2], False, 2, [1, 1, 1, 1], False), False)
sketch6.addGeometry(Part.LineSegment(App.Vector(7.9923, 16.6528, 0), App.Vector(7.9923, 16.0748, 0)), False)
sketch6.addGeometry(Part.BSplineCurve([App.Vector(5.8949, 13.4654, 0), App.Vector(6.2665, 13.6306, 0), App.Vector(7.0014, 14.0352, 0), App.Vector(7.6207, 14.605, 0), App.Vector(7.9923, 15.4472, 0), App.Vector(7.9923, 16.0748, 0)], [3, 1, 1, 1, 3], [0, 1, 2, 3, 4], False, 2, [1, 1, 1, 1, 1, 1], False), False)
sketch6.addGeometry(Part.BSplineCurve([App.Vector(4.4746, 12.0368, 0), App.Vector(4.4746, 12.4415, 0), App.Vector(4.8792, 12.9452, 0), App.Vector(5.5233, 13.3002, 0), App.Vector(5.8949, 13.4654, 0)], [3, 1, 1, 3], [0, 1, 2, 3], False, 2, [1, 1, 1, 1, 1], False), False)
sketch6.addGeometry(Part.LineSegment(App.Vector(4.4746, 12.0368, 0), App.Vector(4.4746, 11.1615, 0)), False)
sketch6.addGeometry(Part.BSplineCurve([App.Vector(5.5646, 10.0302, 0), App.Vector(5.0361, 10.0302, 0), App.Vector(4.4746, 10.6165, 0), App.Vector(4.4746, 11.1615, 0)], [3, 1, 3], [0, 1, 2], False, 2, [1, 1, 1, 1], False), False)
sketch6.addGeometry(Part.BSplineCurve([App.Vector(6.6959, 11.1615, 0), App.Vector(6.6959, 10.6165, 0), App.Vector(6.1096, 10.0302, 0), App.Vector(5.5646, 10.0302, 0)], [3, 1, 3], [0, 1, 2], False, 2, [1, 1, 1, 1], False), False)
sketch6.addGeometry(Part.LineSegment(App.Vector(6.6959, 11.1615, 0), App.Vector(6.6959, 11.6074, 0)), False)
sketch6.addGeometry(Part.LineSegment(App.Vector(6.6959, 11.6074, 0), App.Vector(8.0006, 11.6074, 0)), False)
sketch6.addGeometry(Part.LineSegment(App.Vector(8.0006, 11.6074, 0), App.Vector(8.0006, 11.112, 0)), False)
sketch6.addConstraint([
    Sketcher.Constraint("Block", 2),
    Sketcher.Constraint("Block", 4),
    Sketcher.Constraint("Block", 10),
    Sketcher.Constraint("Block", 12),
    Sketcher.Constraint("Block", 14),
    Sketcher.Constraint("Block", 15),
    Sketcher.Constraint("Block", 17),
    Sketcher.Constraint("Block", 18),
    Sketcher.Constraint("Block", 20),
    Sketcher.Constraint("Block", 21),
    Sketcher.Constraint("Block", 23),
    Sketcher.Constraint("Block", 24),
    Sketcher.Constraint("Block", 48),
    Sketcher.Constraint("Block", 49),
    Sketcher.Constraint("Block", 51),
    Sketcher.Constraint("Block", 52),
    Sketcher.Constraint("Block", 54),
    Sketcher.Constraint("Block", 55),
    Sketcher.Constraint("Block", 59),
    Sketcher.Constraint("Block", 60),
    Sketcher.Constraint("Block", 62),
    Sketcher.Constraint("Block", 63),
    Sketcher.Constraint("Block", 65),
    Sketcher.Constraint("Block", 66),
    Sketcher.Constraint("Coincident", 0, 2, 1, 1),
    Sketcher.Constraint("Coincident", 1, 2, 2, 2),
    Sketcher.Constraint("Coincident", 2, 1, 3, 1),
    Sketcher.Constraint("Coincident", 3, 2, 4, 2),
    Sketcher.Constraint("Coincident", 4, 1, 5, 1),
    Sketcher.Constraint("Coincident", 5, 2, 6, 1),
    Sketcher.Constraint("Coincident", 6, 2, 7, 1),
    Sketcher.Constraint("Coincident", 7, 2, 0, 1),
    Sketcher.Constraint("Coincident", 8, 2, 9, 1),
    Sketcher.Constraint("Coincident", 9, 2, 10, 2),
    Sketcher.Constraint("Coincident", 10, 1, 11, 1),
    Sketcher.Constraint("Coincident", 11, 2, 12, 2),
    Sketcher.Constraint("Coincident", 12, 1, 13, 1),
    Sketcher.Constraint("Coincident", 13, 2, 8, 1),
    Sketcher.Constraint("Coincident", 15, 1, 16, 1),
    Sketcher.Constraint("Coincident", 16, 2, 17, 2),
    Sketcher.Constraint("Coincident", 18, 1, 19, 1),
    Sketcher.Constraint("Coincident", 19, 2, 14, 2),
    Sketcher.Constraint("Coincident", 21, 1, 22, 1),
    Sketcher.Constraint("Coincident", 22, 2, 23, 2),
    Sketcher.Constraint("Coincident", 24, 1, 25, 1),
    Sketcher.Constraint("Coincident", 25, 2, 20, 2),
    Sketcher.Constraint("Coincident", 49, 1, 50, 1),
    Sketcher.Constraint("Coincident", 50, 2, 51, 2),
    Sketcher.Constraint("Coincident", 52, 1, 53, 1),
    Sketcher.Constraint("Coincident", 53, 2, 54, 2),
    Sketcher.Constraint("Coincident", 55, 1, 56, 1),
    Sketcher.Constraint("Coincident", 56, 2, 57, 1),
    Sketcher.Constraint("Coincident", 57, 2, 58, 1),
    Sketcher.Constraint("Coincident", 58, 2, 59, 2),
    Sketcher.Constraint("Coincident", 60, 1, 61, 1),
    Sketcher.Constraint("Coincident", 61, 2, 62, 2),
    Sketcher.Constraint("Coincident", 63, 1, 64, 1),
    Sketcher.Constraint("Coincident", 64, 2, 65, 2),
    Sketcher.Constraint("Coincident", 66, 1, 67, 1),
    Sketcher.Constraint("Coincident", 67, 2, 68, 1),
    Sketcher.Constraint("Coincident", 68, 2, 69, 1),
    Sketcher.Constraint("Coincident", 69, 2, 48, 2),
    Sketcher.Constraint("Vertical", 0),
    Sketcher.Constraint("Horizontal", 1),
    Sketcher.Constraint("Horizontal", 5),
    Sketcher.Constraint("Vertical", 6),
    Sketcher.Constraint("Horizontal", 7),
    Sketcher.Constraint("Vertical", 8),
    Sketcher.Constraint("Horizontal", 9),
    Sketcher.Constraint("Horizontal", 13),
    Sketcher.Constraint("Vertical", 26),
    Sketcher.Constraint("Horizontal", 27),
    Sketcher.Constraint("Vertical", 28),
    Sketcher.Constraint("Horizontal", 29),
    Sketcher.Constraint("Vertical", 30),
    Sketcher.Constraint("Horizontal", 31),
    Sketcher.Constraint("Vertical", 32),
    Sketcher.Constraint("Horizontal", 33),
    Sketcher.Constraint("Vertical", 34),
    Sketcher.Constraint("Horizontal", 35),
    Sketcher.Constraint("Vertical", 36),
    Sketcher.Constraint("Horizontal", 37),
    Sketcher.Constraint("Vertical", 38),
    Sketcher.Constraint("Horizontal", 39),
    Sketcher.Constraint("Vertical", 40),
    Sketcher.Constraint("Horizontal", 41),
    Sketcher.Constraint("Vertical", 42),
    Sketcher.Constraint("Horizontal", 43),
    Sketcher.Constraint("Vertical", 44),
    Sketcher.Constraint("Horizontal", 45),
    Sketcher.Constraint("Vertical", 46),
    Sketcher.Constraint("Horizontal", 47),
    Sketcher.Constraint("Vertical", 56),
    Sketcher.Constraint("Horizontal", 57),
    Sketcher.Constraint("Vertical", 58),
    Sketcher.Constraint("Vertical", 67),
    Sketcher.Constraint("Horizontal", 68),
    Sketcher.Constraint("Vertical", 69),
    Sketcher.Constraint("DistanceY", 6, 2, 6, 1, Q("10 mm")),
    Sketcher.Constraint("DistanceY", 26, 2, 26, 1, Q("10 mm")),
    Sketcher.Constraint("DistanceY", 32, 1, 32, 2, Q("10 mm")),
    Sketcher.Constraint("DistanceY", 36, 2, 36, 1, Q("10 mm")),
    Sketcher.Constraint("DistanceX", 1, 2, 1, 1, Q("1.28 mm")),
    Sketcher.Constraint("DistanceX", 5, 1, 5, 2, Q("2.593 mm")),
    Sketcher.Constraint("DistanceX", 31, 1, 31, 2, Q("1.313 mm")),
    Sketcher.Constraint("DistanceX", 37, 2, 37, 1, Q("4.294 mm")),
    Sketcher.Constraint("DistanceX", 39, 1, 39, 2, Q("2.981 mm")),
    Sketcher.Constraint("DistanceX", 45, 2, 45, 1, Q("2.981 mm")),
    Sketcher.Constraint("DistanceX", 47, 1, 47, 2, Q("4.294 mm")),
    Sketcher.Constraint("DistanceY", 40, 1, 40, 2, Q("3.105 mm")),
    Sketcher.Constraint("DistanceY", 44, 1, 44, 2, Q("3.179 mm")),
    Sketcher.Constraint("DistanceY", 67, 1, 67, 2, Q("0.446 mm")),
    Sketcher.Constraint("DistanceX", 1, 2, 8, 2, Q("1.28 mm")),
    Sketcher.Constraint("DistanceX", 53, 2, 44, 2, Q("5.26 mm")),
    Sketcher.Constraint("DistanceX", 27, 2, 27, 1, Q("4.1536 mm")),
    Sketcher.Constraint("DistanceX", 33, 1, 33, 2, Q("1.3047 mm")),
    Sketcher.Constraint("DistanceX", 41, 2, 41, 1, Q("2.6342 mm")),
    Sketcher.Constraint("DistanceY", 28, 1, 28, 2, Q("1.2386 mm")),
    Sketcher.Constraint("DistanceY", 38, 1, 38, 2, Q("1.2386 mm")),
    Sketcher.Constraint("DistanceY", 42, 1, 42, 2, Q("1.2387 mm")),
    Sketcher.Constraint("DistanceY", 56, 2, 56, 1, Q("0.4707 mm")),
    Sketcher.Constraint("DistanceY", -1, 1, 26, 2, Q("8.866 mm")),
    Sketcher.Constraint("DistanceX", -1, 1, 27, 2, Q("16.952 mm")),
    Sketcher.Constraint("DistanceY", -1, 1, 32, 2, Q("18.866 mm")),
    Sketcher.Constraint("DistanceX", -1, 1, 33, 2, Q("15.928 mm")),
    Sketcher.Constraint("DistanceY", -1, 1, 36, 2, Q("8.866 mm")),
])
pocket3 = body.newObject("PartDesign::Pocket", "Pocket002")
pocket3.Profile = sketch6
pocket3.Length = 0.2
pocket3.Reversed = True

doc.recompute()
